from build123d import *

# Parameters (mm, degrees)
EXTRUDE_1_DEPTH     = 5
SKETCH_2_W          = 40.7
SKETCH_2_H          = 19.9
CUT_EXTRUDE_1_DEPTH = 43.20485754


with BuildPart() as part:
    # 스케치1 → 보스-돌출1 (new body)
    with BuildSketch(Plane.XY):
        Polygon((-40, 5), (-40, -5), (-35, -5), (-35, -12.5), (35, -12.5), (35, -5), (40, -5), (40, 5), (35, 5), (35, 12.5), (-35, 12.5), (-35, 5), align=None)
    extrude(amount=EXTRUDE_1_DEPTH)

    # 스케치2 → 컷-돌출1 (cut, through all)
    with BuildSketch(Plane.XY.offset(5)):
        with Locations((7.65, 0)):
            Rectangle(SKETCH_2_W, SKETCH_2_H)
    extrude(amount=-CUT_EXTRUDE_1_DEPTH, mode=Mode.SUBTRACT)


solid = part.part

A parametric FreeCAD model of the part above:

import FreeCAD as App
import Part
import Sketcher

doc = App.newDocument("Part")
body = doc.addObject("PartDesign::Body", "Body")

# Sketch on XY plane
sketch1 = body.newObject("Sketcher::SketchObject", "Sketch")
sketch1.AttachmentSupport = (doc.getObject("XY_Plane"), [""])
sketch1.MapMode = "FlatFace"
sketch1.addGeometry(Part.LineSegment(App.Vector(-40, 5, 0), App.Vector(-40, -5, 0)), False)
sketch1.addGeometry(Part.LineSegment(App.Vector(-40, -5, 0), App.Vector(-35, -5, 0)), False)
sketch1.addGeometry(Part.LineSegment(App.Vector(-35, -5, 0), App.Vector(-35, -12, 0)), False)
sketch1.addGeometry(Part.LineSegment(App.Vector(-35, -12, 0), App.Vector(35, -12, 0)), False)
sketch1.addGeometry(Part.LineSegment(App.Vector(35, -12, 0), App.Vector(35, -5, 0)), False)
sketch1.addGeometry(Part.LineSegment(App.Vector(35, -5, 0), App.Vector(40, -5, 0)), False)
sketch1.addGeometry(Part.LineSegment(App.Vector(40, -5, 0), App.Vector(40, 5, 0)), False)
sketch1.addGeometry(Part.LineSegment(App.Vector(40, 5, 0), App.Vector(35, 5, 0)), False)
sketch1.addGeometry(Part.LineSegment(App.Vector(35, 5, 0), App.Vector(35, 12, 0)), False)
sketch1.addGeometry(Part.LineSegment(App.Vector(35, 12, 0), App.Vector(-35, 12, 0)), False)
sketch1.addGeometry(Part.LineSegment(App.Vector(-35, 12, 0), App.Vector(-35, 5, 0)), False)
sketch1.addGeometry(Part.LineSegment(App.Vector(-35, 5, 0), App.Vector(-40, 5, 0)), False)
sketch1.addConstraint(Sketcher.Constraint("Coincident", 0, 2, 1, 1))
sketch1.addConstraint(Sketcher.Constraint("Coincident", 1, 2, 2, 1))
sketch1.addConstraint(Sketcher.Constraint("Coincident", 2, 2, 3, 1))
sketch1.addConstraint(Sketcher.Constraint("Coincident", 3, 2, 4, 1))
sketch1.addConstraint(Sketcher.Constraint("Coincident", 4, 2, 5, 1))
sketch1.addConstraint(Sketcher.Constraint("Coincident", 5, 2, 6, 1))
sketch1.addConstraint(Sketcher.Constraint("Coincident", 6, 2, 7, 1))
sketch1.addConstraint(Sketcher.Constraint("Coincident", 7, 2, 8, 1))
sketch1.addConstraint(Sketcher.Constraint("Coincident", 8, 2, 9, 1))
sketch1.addConstraint(Sketcher.Constraint("Coincident", 9, 2, 10, 1))
sketch1.addConstraint(Sketcher.Constraint("Coincident", 10, 2, 11, 1))
sketch1.addConstraint(Sketcher.Constraint("Coincident", 11, 2, 0, 1))
sketch1.addConstraint(Sketcher.Constraint("Vertical", 0))
sketch1.addConstraint(Sketcher.Constraint("Horizontal", 1))
sketch1.addConstraint(Sketcher.Constraint("Vertical", 2))
sketch1.addConstraint(Sketcher.Constraint("Horizontal", 3))
sketch1.addConstraint(Sketcher.Constraint("Vertical", 4))
sketch1.addConstraint(Sketcher.Constraint("Horizontal", 5))
sketch1.addConstraint(Sketcher.Constraint("Vertical", 6))
sketch1.addConstraint(Sketcher.Constraint("Horizontal", 7))
sketch1.addConstraint(Sketcher.Constraint("Vertical", 8))
sketch1.addConstraint(Sketcher.Constraint("Horizontal", 9))
sketch1.addConstraint(Sketcher.Constraint("Vertical", 10))
sketch1.addConstraint(Sketcher.Constraint("Horizontal", 11))
sketch1.addConstraint(Sketcher.Constraint("Symmetric", 0, 2, 6, 2, -1, 1))
sketch1.addConstraint(Sketcher.Constraint("Symmetric", 2, 2, 8, 2, -1, 1))
sketch1.addConstraint(Sketcher.Constraint("Symmetric", 4, 2, 10, 2, -1, 1))
sketch1.addConstraint(Sketcher.Constraint("Symmetric", 1, 2, 4, 2, -2))
sketch1.addConstraint(Sketcher.Constraint("DistanceX", 1, 1, 1, 2, 5.0))
sketch1.addConstraint(Sketcher.Constraint("DistanceX", 3, 1, 3, 2, 70.0))
sketch1.addConstraint(Sketcher.Constraint("DistanceY", 0, 2, 0, 1, 10.0))
sketch1.addConstraint(Sketcher.Constraint("DistanceY", 2, 2, 2, 1, 7.5))
pad1 = body.newObject("PartDesign::Pad", "Pad")
pad1.Profile = sketch1
pad1.Length = 5

# Sketch on XY plane
sketch2 = body.newObject("Sketcher::SketchObject", "Sketch001")
sketch2.AttachmentSupport = (doc.getObject("XY_Plane"), [""])
sketch2.MapMode = "FlatFace"
sketch2.AttachmentOffset = App.Placement(App.Vector(0, 0, 5), App.Rotation())
sketch2.addGeometry(Part.LineSegment(App.Vector(-13, 10, 0), App.Vector(-13, -10, 0)), False)
sketch2.addGeometry(Part.LineSegment(App.Vector(-13, -10, 0), App.Vector(28, -10, 0)), False)
sketch2.addGeometry(Part.LineSegment(App.Vector(28, -10, 0), App.Vector(28, 10, 0)), False)
sketch2.addGeometry(Part.LineSegment(App.Vector(28, 10, 0), App.Vector(-13, 10, 0)), False)
sketch2.addConstraint(Sketcher.Constraint("Coincident", 0, 2, 1, 1))
sketch2.addConstraint(Sketcher.Constraint("Coincident", 1, 2, 2, 1))
sketch2.addConstraint(Sketcher.Constraint("Coincident", 2, 2, 3, 1))
sketch2.addConstraint(Sketcher.Constraint("Coincident", 3, 2, 0, 1))
sketch2.addConstraint(Sketcher.Constraint("Vertical", 0))
sketch2.addConstraint(Sketcher.Constraint("Horizontal", 1))
sketch2.addConstraint(Sketcher.Constraint("Vertical", 2))
sketch2.addConstraint(Sketcher.Constraint("Horizontal", 3))
sketch2.addConstraint(Sketcher.Constraint("DistanceX", 1, 1, 1, 2, 40.7))
sketch2.addConstraint(Sketcher.Constraint("DistanceY", 0, 2, 0, 1, 19.9))
sketch2.addConstraint(Sketcher.Constraint("DistanceX", -1, 1, 1, 2, 28.0))
sketch2.addConstraint(Sketcher.Constraint("DistanceY", 0, 2, -1, 1, 9.95))
pocket1 = body.newObject("PartDesign::Pocket", "Pocket")
pocket1.Profile = sketch2
pocket1.Type = "ThroughAll"

doc.recompute()
